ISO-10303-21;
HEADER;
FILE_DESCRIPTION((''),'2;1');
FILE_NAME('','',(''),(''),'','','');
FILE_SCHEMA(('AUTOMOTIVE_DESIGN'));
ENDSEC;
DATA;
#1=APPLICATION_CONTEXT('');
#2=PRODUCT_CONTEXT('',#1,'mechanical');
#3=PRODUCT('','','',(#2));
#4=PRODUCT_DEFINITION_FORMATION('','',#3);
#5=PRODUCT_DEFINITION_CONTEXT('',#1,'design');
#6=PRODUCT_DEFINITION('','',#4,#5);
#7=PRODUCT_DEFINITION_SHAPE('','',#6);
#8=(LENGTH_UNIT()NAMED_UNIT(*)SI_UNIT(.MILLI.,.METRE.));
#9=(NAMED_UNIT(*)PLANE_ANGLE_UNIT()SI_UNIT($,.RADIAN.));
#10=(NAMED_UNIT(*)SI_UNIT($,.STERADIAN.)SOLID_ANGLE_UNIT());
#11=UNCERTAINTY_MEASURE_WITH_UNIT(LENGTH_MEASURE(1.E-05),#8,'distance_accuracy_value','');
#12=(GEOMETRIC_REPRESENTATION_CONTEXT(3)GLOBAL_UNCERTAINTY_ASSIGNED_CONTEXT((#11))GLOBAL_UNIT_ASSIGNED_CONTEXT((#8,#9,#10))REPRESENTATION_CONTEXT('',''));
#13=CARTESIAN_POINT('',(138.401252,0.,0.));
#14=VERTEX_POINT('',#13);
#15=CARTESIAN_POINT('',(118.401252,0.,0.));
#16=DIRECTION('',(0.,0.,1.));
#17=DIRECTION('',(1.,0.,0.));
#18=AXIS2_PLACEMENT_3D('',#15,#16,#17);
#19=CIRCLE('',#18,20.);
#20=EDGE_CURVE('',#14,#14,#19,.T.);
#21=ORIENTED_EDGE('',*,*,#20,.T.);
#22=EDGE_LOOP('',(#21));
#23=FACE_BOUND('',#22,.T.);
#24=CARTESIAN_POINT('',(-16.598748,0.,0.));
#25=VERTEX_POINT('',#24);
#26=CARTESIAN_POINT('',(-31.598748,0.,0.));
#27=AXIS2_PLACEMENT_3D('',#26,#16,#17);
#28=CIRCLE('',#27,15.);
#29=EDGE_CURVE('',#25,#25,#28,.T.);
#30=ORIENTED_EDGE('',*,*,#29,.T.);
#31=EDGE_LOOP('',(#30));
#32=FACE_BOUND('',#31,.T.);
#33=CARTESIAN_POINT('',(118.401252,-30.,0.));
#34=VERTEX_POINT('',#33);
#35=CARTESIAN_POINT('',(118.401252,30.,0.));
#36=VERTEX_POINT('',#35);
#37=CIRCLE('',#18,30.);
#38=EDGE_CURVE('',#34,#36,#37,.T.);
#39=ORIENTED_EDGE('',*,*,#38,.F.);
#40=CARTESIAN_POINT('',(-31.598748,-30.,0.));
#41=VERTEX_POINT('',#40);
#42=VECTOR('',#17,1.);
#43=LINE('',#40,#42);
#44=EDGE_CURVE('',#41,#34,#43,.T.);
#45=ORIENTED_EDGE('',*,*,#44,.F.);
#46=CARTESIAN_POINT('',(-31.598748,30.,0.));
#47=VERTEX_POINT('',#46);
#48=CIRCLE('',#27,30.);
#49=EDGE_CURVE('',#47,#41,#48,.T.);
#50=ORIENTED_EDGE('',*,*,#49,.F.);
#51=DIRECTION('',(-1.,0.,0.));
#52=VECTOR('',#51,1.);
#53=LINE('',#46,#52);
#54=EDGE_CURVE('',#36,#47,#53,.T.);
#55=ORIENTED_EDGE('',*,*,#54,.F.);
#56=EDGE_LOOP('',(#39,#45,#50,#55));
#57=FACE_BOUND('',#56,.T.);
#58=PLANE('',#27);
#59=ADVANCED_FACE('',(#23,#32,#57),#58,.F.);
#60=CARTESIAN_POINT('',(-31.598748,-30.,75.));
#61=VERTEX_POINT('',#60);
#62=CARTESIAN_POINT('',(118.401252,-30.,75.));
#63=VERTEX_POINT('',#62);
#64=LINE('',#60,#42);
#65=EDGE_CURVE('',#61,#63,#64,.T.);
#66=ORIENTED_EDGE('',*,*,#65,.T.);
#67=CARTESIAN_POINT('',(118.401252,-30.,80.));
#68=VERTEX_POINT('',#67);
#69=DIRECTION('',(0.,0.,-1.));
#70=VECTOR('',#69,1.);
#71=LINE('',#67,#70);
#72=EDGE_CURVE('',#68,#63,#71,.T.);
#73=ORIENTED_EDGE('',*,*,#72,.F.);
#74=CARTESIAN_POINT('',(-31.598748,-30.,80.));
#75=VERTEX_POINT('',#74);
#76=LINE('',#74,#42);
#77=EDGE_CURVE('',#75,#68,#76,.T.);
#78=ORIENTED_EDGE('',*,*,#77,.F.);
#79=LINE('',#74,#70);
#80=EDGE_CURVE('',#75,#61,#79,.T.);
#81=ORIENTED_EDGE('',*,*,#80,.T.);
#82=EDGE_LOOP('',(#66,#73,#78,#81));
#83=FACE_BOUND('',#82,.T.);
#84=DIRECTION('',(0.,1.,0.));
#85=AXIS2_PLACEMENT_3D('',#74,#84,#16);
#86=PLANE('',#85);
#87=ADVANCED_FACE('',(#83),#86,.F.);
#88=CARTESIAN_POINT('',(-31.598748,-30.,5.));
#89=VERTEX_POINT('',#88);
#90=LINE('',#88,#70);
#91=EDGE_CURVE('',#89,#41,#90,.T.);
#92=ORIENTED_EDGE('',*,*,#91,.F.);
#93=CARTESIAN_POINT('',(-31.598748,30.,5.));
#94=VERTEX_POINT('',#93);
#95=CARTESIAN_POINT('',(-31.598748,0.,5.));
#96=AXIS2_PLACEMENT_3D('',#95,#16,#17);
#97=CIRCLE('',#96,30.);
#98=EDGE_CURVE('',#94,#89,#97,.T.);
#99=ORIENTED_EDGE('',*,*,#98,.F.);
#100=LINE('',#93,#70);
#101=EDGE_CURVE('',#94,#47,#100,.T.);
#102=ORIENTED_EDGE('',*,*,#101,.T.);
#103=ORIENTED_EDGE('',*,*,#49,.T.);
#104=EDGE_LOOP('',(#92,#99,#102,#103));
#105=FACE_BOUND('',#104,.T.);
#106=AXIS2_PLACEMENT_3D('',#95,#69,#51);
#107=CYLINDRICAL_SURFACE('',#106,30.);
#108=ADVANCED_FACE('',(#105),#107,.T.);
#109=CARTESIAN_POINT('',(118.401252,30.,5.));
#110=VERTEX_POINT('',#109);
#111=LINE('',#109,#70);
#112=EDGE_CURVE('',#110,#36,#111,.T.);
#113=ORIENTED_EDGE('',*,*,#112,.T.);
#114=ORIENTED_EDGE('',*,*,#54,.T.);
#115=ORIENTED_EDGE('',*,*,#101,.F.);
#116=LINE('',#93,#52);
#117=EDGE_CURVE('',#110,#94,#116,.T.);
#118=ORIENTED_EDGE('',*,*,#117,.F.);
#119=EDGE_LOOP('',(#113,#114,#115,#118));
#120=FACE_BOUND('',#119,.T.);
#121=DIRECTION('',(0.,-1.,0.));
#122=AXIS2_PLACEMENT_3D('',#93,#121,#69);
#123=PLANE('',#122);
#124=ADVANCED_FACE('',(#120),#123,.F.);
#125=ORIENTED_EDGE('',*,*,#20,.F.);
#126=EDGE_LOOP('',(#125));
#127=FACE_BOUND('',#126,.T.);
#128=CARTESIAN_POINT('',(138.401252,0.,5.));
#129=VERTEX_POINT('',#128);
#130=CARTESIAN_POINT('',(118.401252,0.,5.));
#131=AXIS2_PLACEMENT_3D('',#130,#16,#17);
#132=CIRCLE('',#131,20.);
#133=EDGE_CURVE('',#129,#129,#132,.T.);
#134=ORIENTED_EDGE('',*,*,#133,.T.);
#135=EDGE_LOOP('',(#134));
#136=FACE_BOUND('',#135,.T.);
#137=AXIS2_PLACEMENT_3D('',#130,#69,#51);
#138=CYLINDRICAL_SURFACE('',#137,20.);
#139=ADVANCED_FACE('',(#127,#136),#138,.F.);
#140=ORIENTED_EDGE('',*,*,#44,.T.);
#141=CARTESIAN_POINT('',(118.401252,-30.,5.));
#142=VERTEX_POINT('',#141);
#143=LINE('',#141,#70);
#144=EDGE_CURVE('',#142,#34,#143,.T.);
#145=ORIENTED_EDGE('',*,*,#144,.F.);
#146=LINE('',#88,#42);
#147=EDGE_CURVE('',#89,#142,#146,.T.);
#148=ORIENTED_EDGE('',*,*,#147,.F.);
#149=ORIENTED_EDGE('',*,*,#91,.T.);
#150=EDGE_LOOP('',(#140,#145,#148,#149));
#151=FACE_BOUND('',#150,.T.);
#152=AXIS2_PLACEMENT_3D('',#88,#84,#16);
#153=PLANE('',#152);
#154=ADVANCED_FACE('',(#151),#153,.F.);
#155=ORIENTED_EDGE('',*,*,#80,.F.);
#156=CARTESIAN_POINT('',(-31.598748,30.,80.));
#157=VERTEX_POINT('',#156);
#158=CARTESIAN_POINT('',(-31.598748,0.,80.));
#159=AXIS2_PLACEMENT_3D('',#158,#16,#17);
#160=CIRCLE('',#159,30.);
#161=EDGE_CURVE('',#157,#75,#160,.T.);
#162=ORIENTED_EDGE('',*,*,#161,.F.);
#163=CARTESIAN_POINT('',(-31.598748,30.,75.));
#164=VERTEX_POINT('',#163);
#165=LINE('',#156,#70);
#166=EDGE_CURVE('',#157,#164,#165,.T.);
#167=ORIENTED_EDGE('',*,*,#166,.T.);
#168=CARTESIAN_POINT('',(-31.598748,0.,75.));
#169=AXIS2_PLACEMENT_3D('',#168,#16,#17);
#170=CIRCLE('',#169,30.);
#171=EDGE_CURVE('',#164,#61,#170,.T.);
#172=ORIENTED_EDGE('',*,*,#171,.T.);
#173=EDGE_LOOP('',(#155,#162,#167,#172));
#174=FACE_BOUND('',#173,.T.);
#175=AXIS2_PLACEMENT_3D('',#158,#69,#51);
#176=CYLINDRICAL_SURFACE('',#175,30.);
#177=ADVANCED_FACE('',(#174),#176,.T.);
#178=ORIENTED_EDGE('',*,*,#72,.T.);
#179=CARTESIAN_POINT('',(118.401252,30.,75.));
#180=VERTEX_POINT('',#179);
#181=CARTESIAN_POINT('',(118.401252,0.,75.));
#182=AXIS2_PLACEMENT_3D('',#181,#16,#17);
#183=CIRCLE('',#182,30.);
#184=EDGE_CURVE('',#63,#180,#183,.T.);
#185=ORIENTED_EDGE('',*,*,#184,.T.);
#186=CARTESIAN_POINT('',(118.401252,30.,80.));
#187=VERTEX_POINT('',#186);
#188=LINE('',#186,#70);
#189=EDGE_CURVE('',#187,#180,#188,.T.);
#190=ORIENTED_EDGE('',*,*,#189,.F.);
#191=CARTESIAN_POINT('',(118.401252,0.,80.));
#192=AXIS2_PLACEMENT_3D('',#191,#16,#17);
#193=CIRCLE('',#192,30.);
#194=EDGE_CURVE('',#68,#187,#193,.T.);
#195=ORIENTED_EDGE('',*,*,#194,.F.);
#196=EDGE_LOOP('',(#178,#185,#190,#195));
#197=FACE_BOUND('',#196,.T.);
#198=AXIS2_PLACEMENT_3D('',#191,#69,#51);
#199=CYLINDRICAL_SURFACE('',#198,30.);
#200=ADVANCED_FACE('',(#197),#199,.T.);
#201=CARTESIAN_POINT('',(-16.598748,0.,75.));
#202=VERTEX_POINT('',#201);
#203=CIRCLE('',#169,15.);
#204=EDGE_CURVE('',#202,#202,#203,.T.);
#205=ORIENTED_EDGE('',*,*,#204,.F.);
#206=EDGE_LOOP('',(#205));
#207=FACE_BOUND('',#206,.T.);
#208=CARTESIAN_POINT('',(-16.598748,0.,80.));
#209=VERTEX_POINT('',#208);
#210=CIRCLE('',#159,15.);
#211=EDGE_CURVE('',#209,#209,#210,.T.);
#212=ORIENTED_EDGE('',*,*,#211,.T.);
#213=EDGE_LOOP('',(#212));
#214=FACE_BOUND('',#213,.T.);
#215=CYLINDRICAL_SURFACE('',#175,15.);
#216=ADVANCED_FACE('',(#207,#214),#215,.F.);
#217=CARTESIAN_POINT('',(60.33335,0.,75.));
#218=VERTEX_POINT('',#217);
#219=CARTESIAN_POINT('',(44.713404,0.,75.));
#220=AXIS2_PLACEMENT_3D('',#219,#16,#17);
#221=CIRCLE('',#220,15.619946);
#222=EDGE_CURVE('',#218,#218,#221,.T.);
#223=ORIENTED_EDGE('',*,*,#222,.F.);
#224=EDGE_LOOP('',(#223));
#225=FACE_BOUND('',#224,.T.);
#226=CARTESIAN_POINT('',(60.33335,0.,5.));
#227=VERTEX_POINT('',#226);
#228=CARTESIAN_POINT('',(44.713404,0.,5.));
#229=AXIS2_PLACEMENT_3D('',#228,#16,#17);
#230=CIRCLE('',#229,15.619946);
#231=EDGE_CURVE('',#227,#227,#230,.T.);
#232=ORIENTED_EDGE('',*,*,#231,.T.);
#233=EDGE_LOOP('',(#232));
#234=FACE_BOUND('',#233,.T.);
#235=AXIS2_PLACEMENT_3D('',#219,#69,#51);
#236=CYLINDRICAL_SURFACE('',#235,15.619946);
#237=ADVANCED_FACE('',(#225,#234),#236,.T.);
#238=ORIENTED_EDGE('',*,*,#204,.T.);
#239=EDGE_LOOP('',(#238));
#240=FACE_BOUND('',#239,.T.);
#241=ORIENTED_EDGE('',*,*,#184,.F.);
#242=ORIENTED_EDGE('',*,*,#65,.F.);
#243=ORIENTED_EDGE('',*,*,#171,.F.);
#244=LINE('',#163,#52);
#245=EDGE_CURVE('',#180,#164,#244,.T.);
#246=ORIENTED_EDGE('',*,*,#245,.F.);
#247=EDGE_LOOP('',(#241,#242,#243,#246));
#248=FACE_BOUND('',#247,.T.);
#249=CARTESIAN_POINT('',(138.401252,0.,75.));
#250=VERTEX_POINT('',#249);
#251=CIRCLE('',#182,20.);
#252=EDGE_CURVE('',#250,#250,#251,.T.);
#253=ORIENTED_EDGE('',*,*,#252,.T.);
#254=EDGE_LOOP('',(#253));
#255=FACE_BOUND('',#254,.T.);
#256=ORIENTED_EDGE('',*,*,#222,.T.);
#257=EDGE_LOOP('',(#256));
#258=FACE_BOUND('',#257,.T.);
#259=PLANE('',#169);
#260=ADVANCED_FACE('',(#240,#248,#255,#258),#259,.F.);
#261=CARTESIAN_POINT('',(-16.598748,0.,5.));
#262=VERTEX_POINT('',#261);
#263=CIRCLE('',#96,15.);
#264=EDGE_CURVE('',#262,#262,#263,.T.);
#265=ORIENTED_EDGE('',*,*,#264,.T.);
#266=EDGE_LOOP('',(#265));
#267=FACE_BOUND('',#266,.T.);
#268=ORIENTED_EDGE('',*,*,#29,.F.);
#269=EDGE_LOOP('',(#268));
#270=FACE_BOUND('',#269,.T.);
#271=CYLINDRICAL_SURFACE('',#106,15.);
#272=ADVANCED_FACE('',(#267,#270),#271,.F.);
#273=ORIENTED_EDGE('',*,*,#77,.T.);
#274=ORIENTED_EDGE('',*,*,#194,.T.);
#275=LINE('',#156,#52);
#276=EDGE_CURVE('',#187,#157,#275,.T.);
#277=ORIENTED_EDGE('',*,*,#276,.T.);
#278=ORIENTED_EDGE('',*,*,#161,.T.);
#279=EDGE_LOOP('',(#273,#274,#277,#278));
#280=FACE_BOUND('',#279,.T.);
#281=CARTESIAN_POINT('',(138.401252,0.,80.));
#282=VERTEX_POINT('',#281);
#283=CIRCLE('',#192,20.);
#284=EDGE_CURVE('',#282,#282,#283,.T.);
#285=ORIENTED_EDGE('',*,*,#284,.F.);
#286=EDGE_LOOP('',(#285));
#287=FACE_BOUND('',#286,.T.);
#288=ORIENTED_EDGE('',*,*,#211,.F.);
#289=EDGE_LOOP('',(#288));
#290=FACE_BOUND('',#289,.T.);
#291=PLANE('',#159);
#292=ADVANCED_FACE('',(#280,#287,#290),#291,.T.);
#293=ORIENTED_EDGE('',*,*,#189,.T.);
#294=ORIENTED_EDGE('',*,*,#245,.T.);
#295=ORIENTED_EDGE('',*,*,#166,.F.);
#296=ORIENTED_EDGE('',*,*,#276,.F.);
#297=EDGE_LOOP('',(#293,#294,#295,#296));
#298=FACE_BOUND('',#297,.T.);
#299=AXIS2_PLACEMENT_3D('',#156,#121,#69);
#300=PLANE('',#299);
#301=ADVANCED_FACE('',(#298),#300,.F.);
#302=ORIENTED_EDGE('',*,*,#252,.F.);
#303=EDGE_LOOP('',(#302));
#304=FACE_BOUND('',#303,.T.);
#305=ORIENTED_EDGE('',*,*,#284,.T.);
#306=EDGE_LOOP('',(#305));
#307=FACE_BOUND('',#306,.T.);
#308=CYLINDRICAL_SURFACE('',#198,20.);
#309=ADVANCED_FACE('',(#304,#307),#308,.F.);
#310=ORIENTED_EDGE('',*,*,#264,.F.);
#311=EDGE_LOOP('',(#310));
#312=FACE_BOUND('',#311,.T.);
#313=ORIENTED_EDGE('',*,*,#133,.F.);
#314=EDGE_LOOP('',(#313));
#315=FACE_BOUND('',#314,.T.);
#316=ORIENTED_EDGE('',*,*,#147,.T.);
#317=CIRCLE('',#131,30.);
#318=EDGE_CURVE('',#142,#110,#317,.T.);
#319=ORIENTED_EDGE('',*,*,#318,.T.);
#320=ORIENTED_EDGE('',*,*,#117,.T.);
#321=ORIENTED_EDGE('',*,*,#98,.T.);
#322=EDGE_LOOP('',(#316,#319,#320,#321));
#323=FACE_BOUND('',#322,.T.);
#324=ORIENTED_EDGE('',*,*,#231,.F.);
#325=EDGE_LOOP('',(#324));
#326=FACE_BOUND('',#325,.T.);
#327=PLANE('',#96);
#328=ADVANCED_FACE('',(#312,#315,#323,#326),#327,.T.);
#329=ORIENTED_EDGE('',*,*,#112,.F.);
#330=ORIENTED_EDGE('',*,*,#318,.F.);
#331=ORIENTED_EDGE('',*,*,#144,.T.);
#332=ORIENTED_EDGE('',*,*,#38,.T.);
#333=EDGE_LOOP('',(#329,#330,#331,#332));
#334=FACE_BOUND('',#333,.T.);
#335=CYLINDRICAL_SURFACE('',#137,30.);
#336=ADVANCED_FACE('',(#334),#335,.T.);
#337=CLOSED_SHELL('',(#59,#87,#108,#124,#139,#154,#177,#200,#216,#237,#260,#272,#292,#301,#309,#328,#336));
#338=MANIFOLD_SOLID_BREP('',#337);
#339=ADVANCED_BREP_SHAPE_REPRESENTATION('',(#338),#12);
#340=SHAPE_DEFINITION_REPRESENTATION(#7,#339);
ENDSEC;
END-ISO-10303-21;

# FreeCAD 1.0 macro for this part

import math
import FreeCAD as App
import Part
import Sketcher

V = App.Vector

doc = App.newDocument("Part")
body = doc.addObject("PartDesign::Body", "Body")

# Sketch on XY plane
sketch1 = doc.addObject("Sketcher::SketchObject", "Sketch")
body.addObject(sketch1)
sketch1.AttachmentSupport = (doc.XY_Plane, [""])
sketch1.MapMode = "FlatFace"
sketch1.addGeometry([
    Part.LineSegment(V(118, 30, 0), V(-32, 30, 0)),  # 0
    Part.ArcOfCircle(Part.Circle(V(-32, 0, 0), V(0, 0, 1), 30), math.radians(90), math.radians(270)),  # 1
    Part.LineSegment(V(-32, -30, 0), V(118, -30, 0)),  # 2
    Part.ArcOfCircle(Part.Circle(V(118, 0, 0), V(0, 0, 1), 30), math.radians(-90), math.radians(90)),  # 3
    Part.Circle(V(118, 0, 0), V(0, 0, 1), 20),  # 4
    Part.Circle(V(-32, 0, 0), V(0, 0, 1), 15),  # 5
], False)
sketch1.addConstraint([
    Sketcher.Constraint("Tangent", 0, 2, 1, 1),
    Sketcher.Constraint("Tangent", 1, 2, 2, 1),
    Sketcher.Constraint("Tangent", 2, 2, 3, 1),
    Sketcher.Constraint("Tangent", 3, 2, 0, 1),
    Sketcher.Constraint("Horizontal", 0),
    Sketcher.Constraint("Horizontal", 2),
    Sketcher.Constraint("Coincident", 4, 3, 3, 3),
    Sketcher.Constraint("Coincident", 5, 3, 1, 3),
    Sketcher.Constraint("PointOnObject", 1, 3, -1),
    Sketcher.Constraint("Diameter", 4, 40.0),
    Sketcher.Constraint("Diameter", 5, 30.0),
    Sketcher.Constraint("Radius", 1, 30.0),
    Sketcher.Constraint("DistanceX", 0, 2, 0, 1, 150.0),
    Sketcher.Constraint("DistanceX", 1, 3, -1, 1, 31.598748),
])
pad1 = doc.addObject("PartDesign::Pad", "Pad")
body.addObject(pad1)
pad1.Profile = sketch1
pad1.Length = 5

# Sketch on XY plane
sketch2 = doc.addObject("Sketcher::SketchObject", "Sketch001")
body.addObject(sketch2)
sketch2.AttachmentSupport = (doc.XY_Plane, [""])
sketch2.MapMode = "FlatFace"
sketch2.AttachmentOffset = App.Placement(V(0, 0, 5), App.Rotation())
sketch2.addGeometry(Part.Circle(V(45, 0, 0), V(0, 0, 1), 16), False)
sketch2.addConstraint([
    Sketcher.Constraint("PointOnObject", 0, 3, -1),
    Sketcher.Constraint("Diameter", 0, 31.239892),
    Sketcher.Constraint("DistanceX", -1, 1, 0, 3, 44.713404),
])
pad2 = doc.addObject("PartDesign::Pad", "Pad001")
body.addObject(pad2)
pad2.Profile = sketch2
pad2.Length = 70
doc.recompute()

linearpattern = doc.addObject("PartDesign::LinearPattern", "LinearPattern")
body.addObject(linearpattern)
linearpattern.Originals = [pad1]
linearpattern.Direction = (doc.Z_Axis, [""])
linearpattern.Mode = "offset"
linearpattern.Offset = 75
linearpattern.Occurrences = 2
body.Tip = linearpattern

doc.recompute()
